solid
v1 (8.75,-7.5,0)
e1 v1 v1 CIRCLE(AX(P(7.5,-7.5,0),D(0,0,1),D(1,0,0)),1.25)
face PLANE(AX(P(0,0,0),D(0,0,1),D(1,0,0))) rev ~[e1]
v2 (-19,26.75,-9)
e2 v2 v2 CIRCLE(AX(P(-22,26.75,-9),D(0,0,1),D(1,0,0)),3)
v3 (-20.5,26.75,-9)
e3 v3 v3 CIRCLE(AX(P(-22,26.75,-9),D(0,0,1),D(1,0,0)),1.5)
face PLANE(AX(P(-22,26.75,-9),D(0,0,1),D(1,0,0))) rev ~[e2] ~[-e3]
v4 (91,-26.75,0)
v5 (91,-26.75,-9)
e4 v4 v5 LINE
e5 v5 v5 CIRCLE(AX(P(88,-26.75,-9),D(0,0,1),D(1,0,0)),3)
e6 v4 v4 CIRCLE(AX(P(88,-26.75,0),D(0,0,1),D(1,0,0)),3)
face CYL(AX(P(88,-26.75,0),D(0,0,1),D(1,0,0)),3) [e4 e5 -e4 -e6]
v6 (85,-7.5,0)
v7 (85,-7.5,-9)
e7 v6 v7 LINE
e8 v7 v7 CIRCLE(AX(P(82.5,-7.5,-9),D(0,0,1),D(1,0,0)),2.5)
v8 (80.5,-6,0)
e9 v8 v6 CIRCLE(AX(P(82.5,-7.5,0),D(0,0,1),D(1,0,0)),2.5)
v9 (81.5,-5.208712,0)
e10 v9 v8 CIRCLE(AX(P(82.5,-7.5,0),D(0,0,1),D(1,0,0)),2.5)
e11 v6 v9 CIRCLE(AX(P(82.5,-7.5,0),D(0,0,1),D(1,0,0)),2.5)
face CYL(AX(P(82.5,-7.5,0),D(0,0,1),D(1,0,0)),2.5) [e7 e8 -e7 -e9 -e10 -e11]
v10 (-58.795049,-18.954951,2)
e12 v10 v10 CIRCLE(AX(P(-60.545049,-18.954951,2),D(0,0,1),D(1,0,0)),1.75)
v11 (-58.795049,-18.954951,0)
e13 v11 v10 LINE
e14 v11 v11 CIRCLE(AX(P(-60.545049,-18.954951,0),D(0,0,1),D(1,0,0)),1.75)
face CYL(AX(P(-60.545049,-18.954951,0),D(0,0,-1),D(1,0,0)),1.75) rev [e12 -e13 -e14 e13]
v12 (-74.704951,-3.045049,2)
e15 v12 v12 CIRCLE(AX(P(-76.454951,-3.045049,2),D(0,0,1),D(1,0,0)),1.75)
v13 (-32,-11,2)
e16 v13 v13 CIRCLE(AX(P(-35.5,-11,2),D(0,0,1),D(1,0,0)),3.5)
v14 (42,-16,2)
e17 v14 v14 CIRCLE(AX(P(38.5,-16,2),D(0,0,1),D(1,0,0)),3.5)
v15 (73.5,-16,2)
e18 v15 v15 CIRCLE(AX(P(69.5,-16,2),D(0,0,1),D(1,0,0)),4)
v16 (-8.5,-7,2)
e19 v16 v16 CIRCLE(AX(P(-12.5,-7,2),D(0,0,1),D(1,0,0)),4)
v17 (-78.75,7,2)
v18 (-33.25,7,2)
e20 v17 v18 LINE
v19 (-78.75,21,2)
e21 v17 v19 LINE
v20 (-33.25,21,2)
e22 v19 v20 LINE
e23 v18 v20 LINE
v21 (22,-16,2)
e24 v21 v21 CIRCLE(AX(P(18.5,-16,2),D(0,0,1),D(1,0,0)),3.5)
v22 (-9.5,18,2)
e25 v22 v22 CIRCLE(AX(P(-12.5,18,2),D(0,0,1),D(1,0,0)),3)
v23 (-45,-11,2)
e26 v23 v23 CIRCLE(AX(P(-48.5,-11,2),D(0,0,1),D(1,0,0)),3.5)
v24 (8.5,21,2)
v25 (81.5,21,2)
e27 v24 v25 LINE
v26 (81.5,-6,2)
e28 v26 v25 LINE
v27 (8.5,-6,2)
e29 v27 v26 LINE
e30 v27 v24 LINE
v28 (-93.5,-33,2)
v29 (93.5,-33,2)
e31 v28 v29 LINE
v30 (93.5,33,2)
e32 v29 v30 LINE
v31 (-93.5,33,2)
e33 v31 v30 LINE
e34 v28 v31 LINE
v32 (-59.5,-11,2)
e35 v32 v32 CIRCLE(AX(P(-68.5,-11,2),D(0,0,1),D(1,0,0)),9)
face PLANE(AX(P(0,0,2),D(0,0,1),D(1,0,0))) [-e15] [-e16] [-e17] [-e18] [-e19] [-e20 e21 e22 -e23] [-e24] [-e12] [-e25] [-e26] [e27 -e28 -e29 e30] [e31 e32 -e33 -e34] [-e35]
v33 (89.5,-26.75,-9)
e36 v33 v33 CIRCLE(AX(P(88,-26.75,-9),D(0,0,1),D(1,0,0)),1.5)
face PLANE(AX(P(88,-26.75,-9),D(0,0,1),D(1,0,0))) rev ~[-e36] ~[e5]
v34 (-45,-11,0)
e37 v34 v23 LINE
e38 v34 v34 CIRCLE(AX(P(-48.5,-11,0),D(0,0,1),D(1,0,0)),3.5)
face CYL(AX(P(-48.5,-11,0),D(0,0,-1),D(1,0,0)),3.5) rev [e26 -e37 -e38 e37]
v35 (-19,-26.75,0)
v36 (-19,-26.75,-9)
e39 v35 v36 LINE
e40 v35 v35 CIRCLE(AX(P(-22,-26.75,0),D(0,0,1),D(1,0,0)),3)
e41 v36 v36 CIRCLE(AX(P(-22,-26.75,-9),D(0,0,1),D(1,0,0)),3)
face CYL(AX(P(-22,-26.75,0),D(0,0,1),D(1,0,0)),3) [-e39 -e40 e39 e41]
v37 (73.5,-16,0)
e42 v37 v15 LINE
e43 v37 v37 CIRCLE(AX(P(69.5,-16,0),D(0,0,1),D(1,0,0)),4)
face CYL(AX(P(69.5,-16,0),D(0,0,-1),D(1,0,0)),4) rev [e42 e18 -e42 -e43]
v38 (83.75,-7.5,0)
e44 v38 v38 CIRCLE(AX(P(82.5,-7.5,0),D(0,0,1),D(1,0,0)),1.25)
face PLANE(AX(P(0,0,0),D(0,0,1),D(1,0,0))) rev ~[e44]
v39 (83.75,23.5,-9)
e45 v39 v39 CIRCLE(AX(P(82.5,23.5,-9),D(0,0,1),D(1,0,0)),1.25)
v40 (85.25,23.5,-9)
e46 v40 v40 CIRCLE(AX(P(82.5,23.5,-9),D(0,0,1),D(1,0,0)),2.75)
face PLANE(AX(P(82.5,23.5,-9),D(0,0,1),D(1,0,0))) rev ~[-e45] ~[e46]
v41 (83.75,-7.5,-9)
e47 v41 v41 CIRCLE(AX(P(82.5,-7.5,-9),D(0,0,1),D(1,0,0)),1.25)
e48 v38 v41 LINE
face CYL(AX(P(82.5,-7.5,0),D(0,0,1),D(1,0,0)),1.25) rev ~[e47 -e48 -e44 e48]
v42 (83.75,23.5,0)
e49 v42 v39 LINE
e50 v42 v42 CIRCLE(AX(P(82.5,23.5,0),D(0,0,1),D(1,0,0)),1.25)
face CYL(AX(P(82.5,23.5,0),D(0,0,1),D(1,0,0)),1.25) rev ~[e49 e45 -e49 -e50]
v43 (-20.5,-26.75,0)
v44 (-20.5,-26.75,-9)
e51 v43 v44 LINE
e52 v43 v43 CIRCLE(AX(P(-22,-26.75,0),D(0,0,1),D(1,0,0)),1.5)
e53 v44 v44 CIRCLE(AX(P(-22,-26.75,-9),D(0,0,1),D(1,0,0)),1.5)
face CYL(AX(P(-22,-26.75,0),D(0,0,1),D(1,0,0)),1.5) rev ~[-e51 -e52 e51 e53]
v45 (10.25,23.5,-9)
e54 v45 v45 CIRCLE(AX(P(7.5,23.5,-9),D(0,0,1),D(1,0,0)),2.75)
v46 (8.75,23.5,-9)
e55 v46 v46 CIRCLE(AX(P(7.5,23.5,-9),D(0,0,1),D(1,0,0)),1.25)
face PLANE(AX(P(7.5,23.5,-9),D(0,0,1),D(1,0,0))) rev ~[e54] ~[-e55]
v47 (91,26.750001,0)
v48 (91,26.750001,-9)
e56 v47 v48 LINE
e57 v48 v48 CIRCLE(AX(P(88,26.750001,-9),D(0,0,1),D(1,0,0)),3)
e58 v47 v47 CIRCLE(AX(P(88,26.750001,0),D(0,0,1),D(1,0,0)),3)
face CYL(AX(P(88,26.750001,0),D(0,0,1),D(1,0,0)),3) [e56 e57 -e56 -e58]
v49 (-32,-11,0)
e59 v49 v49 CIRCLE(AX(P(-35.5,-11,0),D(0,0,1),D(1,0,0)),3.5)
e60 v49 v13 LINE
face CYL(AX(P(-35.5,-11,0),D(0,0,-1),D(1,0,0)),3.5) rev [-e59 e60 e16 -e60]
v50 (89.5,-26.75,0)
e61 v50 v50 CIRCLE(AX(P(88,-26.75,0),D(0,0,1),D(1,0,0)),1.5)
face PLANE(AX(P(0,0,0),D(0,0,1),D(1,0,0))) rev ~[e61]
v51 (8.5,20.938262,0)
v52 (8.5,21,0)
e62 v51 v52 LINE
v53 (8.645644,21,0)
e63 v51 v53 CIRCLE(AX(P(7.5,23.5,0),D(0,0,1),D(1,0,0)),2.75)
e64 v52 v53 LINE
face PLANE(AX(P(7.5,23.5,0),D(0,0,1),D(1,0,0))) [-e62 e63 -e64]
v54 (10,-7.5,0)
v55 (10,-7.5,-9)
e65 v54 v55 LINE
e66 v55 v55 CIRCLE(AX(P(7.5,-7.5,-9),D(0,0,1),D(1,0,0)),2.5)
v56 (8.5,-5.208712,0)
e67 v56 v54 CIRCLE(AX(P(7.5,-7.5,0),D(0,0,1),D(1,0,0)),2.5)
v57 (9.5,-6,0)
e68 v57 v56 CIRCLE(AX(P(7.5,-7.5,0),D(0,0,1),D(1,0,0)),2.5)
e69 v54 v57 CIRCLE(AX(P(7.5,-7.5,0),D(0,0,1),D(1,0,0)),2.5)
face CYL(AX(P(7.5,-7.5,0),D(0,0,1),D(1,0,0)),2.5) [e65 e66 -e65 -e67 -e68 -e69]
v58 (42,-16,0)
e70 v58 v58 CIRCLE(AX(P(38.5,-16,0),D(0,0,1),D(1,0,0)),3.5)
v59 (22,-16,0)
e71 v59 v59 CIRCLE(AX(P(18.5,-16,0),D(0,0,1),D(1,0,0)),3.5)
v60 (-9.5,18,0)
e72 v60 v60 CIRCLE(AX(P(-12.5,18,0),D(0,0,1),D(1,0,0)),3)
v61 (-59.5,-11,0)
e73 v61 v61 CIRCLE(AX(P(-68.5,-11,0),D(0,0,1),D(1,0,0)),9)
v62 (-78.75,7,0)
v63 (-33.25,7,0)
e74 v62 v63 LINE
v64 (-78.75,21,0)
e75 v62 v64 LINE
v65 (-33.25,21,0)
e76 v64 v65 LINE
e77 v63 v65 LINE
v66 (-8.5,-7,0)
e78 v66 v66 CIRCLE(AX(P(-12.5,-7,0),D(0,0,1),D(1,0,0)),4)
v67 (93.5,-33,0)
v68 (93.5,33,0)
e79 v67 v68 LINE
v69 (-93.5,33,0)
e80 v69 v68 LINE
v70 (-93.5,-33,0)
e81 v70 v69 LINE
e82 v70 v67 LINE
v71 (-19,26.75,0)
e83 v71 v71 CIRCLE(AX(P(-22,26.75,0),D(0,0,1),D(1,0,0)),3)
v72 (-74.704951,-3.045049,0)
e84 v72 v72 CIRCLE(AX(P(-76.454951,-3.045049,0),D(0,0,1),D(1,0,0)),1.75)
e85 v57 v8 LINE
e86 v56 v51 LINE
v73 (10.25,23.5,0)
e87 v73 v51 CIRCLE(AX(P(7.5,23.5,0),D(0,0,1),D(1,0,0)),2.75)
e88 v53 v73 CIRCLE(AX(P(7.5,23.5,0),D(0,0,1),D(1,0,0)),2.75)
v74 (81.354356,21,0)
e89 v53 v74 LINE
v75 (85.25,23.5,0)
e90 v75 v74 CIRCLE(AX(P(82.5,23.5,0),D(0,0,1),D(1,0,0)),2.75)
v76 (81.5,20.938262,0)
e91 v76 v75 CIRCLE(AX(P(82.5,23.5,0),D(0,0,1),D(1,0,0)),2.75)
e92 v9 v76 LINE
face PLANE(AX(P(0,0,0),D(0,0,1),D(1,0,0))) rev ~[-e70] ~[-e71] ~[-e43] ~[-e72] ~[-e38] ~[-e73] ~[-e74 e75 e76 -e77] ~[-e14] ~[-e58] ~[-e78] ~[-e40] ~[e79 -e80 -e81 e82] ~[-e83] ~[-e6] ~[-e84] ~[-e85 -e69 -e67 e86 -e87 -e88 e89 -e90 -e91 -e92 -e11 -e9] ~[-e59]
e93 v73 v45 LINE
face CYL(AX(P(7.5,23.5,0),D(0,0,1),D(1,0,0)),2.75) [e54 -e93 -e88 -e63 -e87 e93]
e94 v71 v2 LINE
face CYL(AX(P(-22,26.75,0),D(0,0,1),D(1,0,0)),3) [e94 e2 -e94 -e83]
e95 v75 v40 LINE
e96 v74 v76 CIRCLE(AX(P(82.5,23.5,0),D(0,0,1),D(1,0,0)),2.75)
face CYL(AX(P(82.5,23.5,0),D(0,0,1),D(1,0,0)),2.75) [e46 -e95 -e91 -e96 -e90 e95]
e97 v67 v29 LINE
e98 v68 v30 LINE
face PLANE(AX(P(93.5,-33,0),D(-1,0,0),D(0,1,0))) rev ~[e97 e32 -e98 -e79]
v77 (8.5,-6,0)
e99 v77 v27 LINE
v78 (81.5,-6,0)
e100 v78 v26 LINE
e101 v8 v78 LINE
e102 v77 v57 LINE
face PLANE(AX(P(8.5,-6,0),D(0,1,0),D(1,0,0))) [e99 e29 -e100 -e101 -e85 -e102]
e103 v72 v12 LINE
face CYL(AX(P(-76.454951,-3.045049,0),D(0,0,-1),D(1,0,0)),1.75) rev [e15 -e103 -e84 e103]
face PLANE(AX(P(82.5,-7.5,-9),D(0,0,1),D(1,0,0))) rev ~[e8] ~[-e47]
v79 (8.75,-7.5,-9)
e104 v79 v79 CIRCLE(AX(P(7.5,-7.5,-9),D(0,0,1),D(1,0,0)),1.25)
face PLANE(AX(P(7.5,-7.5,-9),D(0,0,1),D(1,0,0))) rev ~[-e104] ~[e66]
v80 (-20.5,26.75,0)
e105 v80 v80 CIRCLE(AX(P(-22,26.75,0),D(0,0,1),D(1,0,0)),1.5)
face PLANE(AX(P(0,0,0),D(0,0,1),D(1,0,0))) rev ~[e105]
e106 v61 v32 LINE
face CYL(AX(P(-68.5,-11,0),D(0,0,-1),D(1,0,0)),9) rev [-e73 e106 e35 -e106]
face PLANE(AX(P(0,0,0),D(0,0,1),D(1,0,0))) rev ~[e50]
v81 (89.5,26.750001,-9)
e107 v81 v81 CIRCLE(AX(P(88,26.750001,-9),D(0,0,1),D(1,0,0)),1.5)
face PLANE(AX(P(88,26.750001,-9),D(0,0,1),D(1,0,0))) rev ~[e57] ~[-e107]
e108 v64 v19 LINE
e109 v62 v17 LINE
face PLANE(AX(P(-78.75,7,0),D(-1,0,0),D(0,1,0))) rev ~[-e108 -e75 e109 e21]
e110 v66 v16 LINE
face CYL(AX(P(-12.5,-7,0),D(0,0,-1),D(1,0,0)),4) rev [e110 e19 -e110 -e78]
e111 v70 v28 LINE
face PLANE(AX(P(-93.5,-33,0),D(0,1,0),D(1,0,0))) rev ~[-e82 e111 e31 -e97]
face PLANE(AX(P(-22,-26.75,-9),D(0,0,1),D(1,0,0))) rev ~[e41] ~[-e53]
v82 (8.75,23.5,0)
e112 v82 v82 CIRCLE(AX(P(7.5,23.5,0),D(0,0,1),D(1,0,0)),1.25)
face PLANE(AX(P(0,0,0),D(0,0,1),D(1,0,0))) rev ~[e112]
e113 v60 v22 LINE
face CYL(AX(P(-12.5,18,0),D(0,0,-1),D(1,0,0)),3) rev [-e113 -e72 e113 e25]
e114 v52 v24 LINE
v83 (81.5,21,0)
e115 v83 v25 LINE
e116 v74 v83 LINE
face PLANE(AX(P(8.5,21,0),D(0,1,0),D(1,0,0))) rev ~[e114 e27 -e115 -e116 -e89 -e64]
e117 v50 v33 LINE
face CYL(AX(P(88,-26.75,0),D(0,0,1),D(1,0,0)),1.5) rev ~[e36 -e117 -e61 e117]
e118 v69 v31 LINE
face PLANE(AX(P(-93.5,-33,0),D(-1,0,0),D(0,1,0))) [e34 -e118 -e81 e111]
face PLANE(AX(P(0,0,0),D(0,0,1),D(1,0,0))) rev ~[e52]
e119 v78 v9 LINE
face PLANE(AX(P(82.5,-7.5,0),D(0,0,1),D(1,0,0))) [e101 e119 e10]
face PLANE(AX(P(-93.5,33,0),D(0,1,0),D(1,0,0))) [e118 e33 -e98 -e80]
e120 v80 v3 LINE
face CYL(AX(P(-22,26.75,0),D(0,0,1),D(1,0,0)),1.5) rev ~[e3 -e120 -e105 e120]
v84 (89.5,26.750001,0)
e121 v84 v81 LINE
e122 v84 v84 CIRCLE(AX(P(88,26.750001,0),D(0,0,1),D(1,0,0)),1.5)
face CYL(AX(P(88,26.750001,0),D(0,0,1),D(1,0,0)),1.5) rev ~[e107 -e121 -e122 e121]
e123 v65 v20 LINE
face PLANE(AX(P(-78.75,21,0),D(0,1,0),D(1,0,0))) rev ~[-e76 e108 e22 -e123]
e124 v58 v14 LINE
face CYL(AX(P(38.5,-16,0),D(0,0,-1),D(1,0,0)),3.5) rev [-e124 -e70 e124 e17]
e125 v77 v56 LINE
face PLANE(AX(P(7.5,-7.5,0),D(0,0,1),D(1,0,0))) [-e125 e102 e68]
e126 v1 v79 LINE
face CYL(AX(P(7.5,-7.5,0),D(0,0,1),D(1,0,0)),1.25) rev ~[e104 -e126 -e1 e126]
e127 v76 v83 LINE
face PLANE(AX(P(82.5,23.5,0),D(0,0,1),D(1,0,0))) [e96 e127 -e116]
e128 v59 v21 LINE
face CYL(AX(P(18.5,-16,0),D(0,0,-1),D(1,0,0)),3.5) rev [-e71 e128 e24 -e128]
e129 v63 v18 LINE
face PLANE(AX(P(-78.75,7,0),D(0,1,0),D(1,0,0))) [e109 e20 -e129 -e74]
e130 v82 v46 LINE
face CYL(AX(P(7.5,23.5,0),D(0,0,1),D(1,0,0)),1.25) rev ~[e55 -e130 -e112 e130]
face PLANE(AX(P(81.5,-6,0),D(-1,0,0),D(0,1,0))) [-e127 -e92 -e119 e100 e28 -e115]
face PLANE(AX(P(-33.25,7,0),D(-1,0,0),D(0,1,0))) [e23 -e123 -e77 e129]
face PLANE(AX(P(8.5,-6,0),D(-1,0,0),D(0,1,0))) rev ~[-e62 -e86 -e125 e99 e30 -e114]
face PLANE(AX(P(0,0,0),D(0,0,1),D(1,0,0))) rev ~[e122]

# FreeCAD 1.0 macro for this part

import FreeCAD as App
import Part
import Sketcher
from FreeCAD import Vector
Q = App.Units.Quantity


def add_polygon(sketch, points):
    """Adds a closed chain of lines whose ends are joined by coincident constraints."""
    first, n = sketch.GeometryCount, len(points)
    for a, b in zip(points, points[1:] + points[:1]):
        sketch.addGeometry(Part.LineSegment(App.Vector(*a, 0), App.Vector(*b, 0)), False)
    for i in range(n):
        sketch.addConstraint(Sketcher.Constraint("Coincident", first + i, 2, first + (i + 1) % n, 1))

doc = App.newDocument("Part")
params = doc.addObject("Spreadsheet::Sheet", "Params")
for row, (alias, value) in enumerate([
    ("sketch1_diameter", "18 mm"),
    ("sketch1_diameter2", "7 mm"),
    ("sketch1_diameter3", "8 mm"),
    ("sketch1_diameter4", "6 mm"),
    ("sketch1_diameter5", "3.5 mm"),
    ("pad1_length", "2 mm"),
    ("sketch2_diameter", "5 mm"),
    ("sketch2_diameter2", "6 mm"),
    ("sketch2_diameter3", "3 mm"),
    ("sketch2_diameter4", "5.5 mm"),
    ("sketch2_diameter5", "2.5 mm"),
    ("pad2_length", "9 mm"),
], start=1):
    params.set(f"A{row}", alias)
    params.set(f"B{row}", "=" + value)
    params.setAlias(f"B{row}", alias)

body = doc.addObject("PartDesign::Body", "Body")

# Sketch on XY plane
sketch1 = body.newObject("Sketcher::SketchObject", "Sketch")
sketch1.AttachmentSupport = (doc.getObject("XY_Plane"), [""])
sketch1.MapMode = "FlatFace"
add_polygon(sketch1, [(-93.5, 33), (-93.5, -33), (93.5, -33), (93.5, 33)])  # lines 0-3
sketch1.addGeometry(Part.Circle(Vector(-60.5, -19, 0), Vector(0, 0, 1), 1.8), False)  # 4
sketch1.addGeometry(Part.Circle(Vector(-68.5, -11, 0), Vector(0, 0, 1), 9), False)  # 5
sketch1.addGeometry(Part.Circle(Vector(-48.5, -11, 0), Vector(0, 0, 1), 3.5), False)  # 6
sketch1.addGeometry(Part.Circle(Vector(-35.5, -11, 0), Vector(0, 0, 1), 3.5), False)  # 7
sketch1.addGeometry(Part.Circle(Vector(-76.5, -3, 0), Vector(0, 0, 1), 1.8), False)  # 8
sketch1.addGeometry(Part.Circle(Vector(-12.5, -7, 0), Vector(0, 0, 1), 4), False)  # 9
sketch1.addGeometry(Part.Circle(Vector(18.5, -16, 0), Vector(0, 0, 1), 3.5), False)  # 10
sketch1.addGeometry(Part.Circle(Vector(38.5, -16, 0), Vector(0, 0, 1), 3.5), False)  # 11
sketch1.addGeometry(Part.Circle(Vector(69.5, -16, 0), Vector(0, 0, 1), 4), False)  # 12
add_polygon(sketch1, [(-33.2, 7), (-78.8, 7), (-78.8, 21), (-33.2, 21)])  # lines 13-16
sketch1.addGeometry(Part.Circle(Vector(-12.5, 18, 0), Vector(0, 0, 1), 3), False)  # 17
add_polygon(sketch1, [(81.5, -6), (8.5, -6), (8.5, 21), (81.5, 21)])  # lines 18-21
sketch1.addConstraint([
    Sketcher.Constraint("Vertical", 0),
    Sketcher.Constraint("Horizontal", 1),
    Sketcher.Constraint("Vertical", 2),
    Sketcher.Constraint("Horizontal", 3),
    Sketcher.Constraint("Horizontal", 13),
    Sketcher.Constraint("Vertical", 14),
    Sketcher.Constraint("Horizontal", 15),
    Sketcher.Constraint("Vertical", 16),
    Sketcher.Constraint("Horizontal", 18),
    Sketcher.Constraint("Vertical", 19),
    Sketcher.Constraint("Horizontal", 20),
    Sketcher.Constraint("Vertical", 21),
    Sketcher.Constraint("Equal", 6, 7),
    Sketcher.Constraint("Equal", 4, 8),
    Sketcher.Constraint("Equal", 7, 10),
    Sketcher.Constraint("Equal", 10, 11),
    Sketcher.Constraint("Equal", 9, 12),
    Sketcher.Constraint("Symmetric", 0, 2, 2, 2, -1, 1),
    Sketcher.Constraint("Horizontal", 5, 3, 6, 3),
    Sketcher.Constraint("Horizontal", 6, 3, 7, 3),
    Sketcher.Constraint("Horizontal", 10, 3, 11, 3),
    Sketcher.Constraint("Horizontal", 11, 3, 12, 3),
    Sketcher.Constraint("Horizontal", 15, 2, 19, 2),
    Sketcher.Constraint("Vertical", 9, 3, 17, 3),
    Sketcher.Constraint("Diameter", 5, Q("18 mm")),
    Sketcher.Constraint("Diameter", 6, Q("7 mm")),
    Sketcher.Constraint("Diameter", 9, Q("8 mm")),
    Sketcher.Constraint("Diameter", 17, Q("6 mm")),
    Sketcher.Constraint("Diameter", 4, Q("3.5 mm")),
    Sketcher.Constraint("DistanceX", 1, 1, 1, 2, Q("187 mm")),
    Sketcher.Constraint("DistanceX", 18, 2, 18, 1, Q("73 mm")),
    Sketcher.Constraint("DistanceY", 0, 2, 0, 1, Q("66 mm")),
    Sketcher.Constraint("DistanceY", 14, 1, 14, 2, Q("14 mm")),
    Sketcher.Constraint("DistanceY", 19, 1, 19, 2, Q("27 mm")),
    Sketcher.Constraint("DistanceX", 13, 2, 13, 1, Q("45.5 mm")),
    Sketcher.Constraint("DistanceY", 5, 3, -1, 1, Q("11 mm")),
    Sketcher.Constraint("DistanceY", 9, 3, -1, 1, Q("7 mm")),
    Sketcher.Constraint("DistanceY", 10, 3, -1, 1, Q("16 mm")),
    Sketcher.Constraint("DistanceY", -1, 1, 17, 3, Q("18 mm")),
    Sketcher.Constraint("DistanceY", -1, 1, 13, 2, Q("7 mm")),
    Sketcher.Constraint("DistanceX", 5, 3, 6, 3, Q("20 mm")),
    Sketcher.Constraint("DistanceX", 6, 3, 7, 3, Q("13 mm")),
    Sketcher.Constraint("DistanceX", 7, 3, 9, 3, Q("23 mm")),
    Sketcher.Constraint("DistanceX", 9, 3, 10, 3, Q("31 mm")),
    Sketcher.Constraint("DistanceX", 10, 3, 11, 3, Q("20 mm")),
    Sketcher.Constraint("DistanceX", 11, 3, 12, 3, Q("31 mm")),
    Sketcher.Constraint("DistanceX", 0, 2, 5, 3, Q("25 mm")),
    Sketcher.Constraint("DistanceX", 18, 2, 10, 3, Q("10 mm")),
    Sketcher.Constraint("DistanceX", 13, 2, -1, 1, Q("78.75 mm")),
    Sketcher.Constraint("DistanceX", 8, 3, 4, 3, Q("15.909902 mm")),
    Sketcher.Constraint("DistanceX", 4, 3, -1, 1, Q("60.545049 mm")),
    Sketcher.Constraint("DistanceY", 4, 3, -1, 1, Q("18.954951 mm")),
    Sketcher.Constraint("DistanceY", 8, 3, -1, 1, Q("3.045049 mm")),
])
sketch1.setExpression("Constraints[36]", "Params.sketch1_diameter")
sketch1.setExpression("Constraints[37]", "Params.sketch1_diameter2")
sketch1.setExpression("Constraints[38]", "Params.sketch1_diameter3")
sketch1.setExpression("Constraints[39]", "Params.sketch1_diameter4")
sketch1.setExpression("Constraints[40]", "Params.sketch1_diameter5")
pad1 = body.newObject("PartDesign::Pad", "Pad")
pad1.Profile = sketch1
pad1.setExpression("Length", "Params.pad1_length")

# Sketch on XY plane
sketch2 = body.newObject("Sketcher::SketchObject", "Sketch001")
sketch2.AttachmentSupport = (doc.getObject("XY_Plane"), [""])
sketch2.MapMode = "FlatFace"
sketch2.addGeometry([
    Part.Circle(Vector(82.5, 23.5, 0), Vector(0, 0, 1), 2.8),  # 0
    Part.Circle(Vector(82.5, 23.5, 0), Vector(0, 0, 1), 1.2),  # 1
    Part.Circle(Vector(7.5, 23.5, 0), Vector(0, 0, 1), 2.8),  # 2
    Part.Circle(Vector(7.5, 23.5, 0), Vector(0, 0, 1), 1.2),  # 3
    Part.Circle(Vector(82.5, -7.5, 0), Vector(0, 0, 1), 2.5),  # 4
    Part.Circle(Vector(82.5, -7.5, 0), Vector(0, 0, 1), 1.2),  # 5
    Part.Circle(Vector(7.5, -7.5, 0), Vector(0, 0, 1), 2.5),  # 6
    Part.Circle(Vector(7.5, -7.5, 0), Vector(0, 0, 1), 1.2),  # 7
    Part.Circle(Vector(-22, 26.8, 0), Vector(0, 0, 1), 3),  # 8
    Part.Circle(Vector(-22, 26.8, 0), Vector(0, 0, 1), 1.5),  # 9
    Part.Circle(Vector(-22, -26.8, 0), Vector(0, 0, 1), 3),  # 10
    Part.Circle(Vector(-22, -26.8, 0), Vector(0, 0, 1), 1.5),  # 11
    Part.Circle(Vector(88, -26.8, 0), Vector(0, 0, 1), 3),  # 12
    Part.Circle(Vector(88, -26.8, 0), Vector(0, 0, 1), 1.5),  # 13
    Part.Circle(Vector(88, 26.8, 0), Vector(0, 0, 1), 3),  # 14
    Part.Circle(Vector(88, 26.8, 0), Vector(0, 0, 1), 1.5),  # 15
], False)
sketch2.addConstraint([
    Sketcher.Constraint("Coincident", 1, 3, 0, 3),
    Sketcher.Constraint("Coincident", 3, 3, 2, 3),
    Sketcher.Constraint("Coincident", 5, 3, 4, 3),
    Sketcher.Constraint("Coincident", 7, 3, 6, 3),
    Sketcher.Constraint("Coincident", 9, 3, 8, 3),
    Sketcher.Constraint("Coincident", 11, 3, 10, 3),
    Sketcher.Constraint("Coincident", 13, 3, 12, 3),
    Sketcher.Constraint("Coincident", 15, 3, 14, 3),
    Sketcher.Constraint("Equal", 0, 2),
    Sketcher.Constraint("Equal", 1, 3),
    Sketcher.Constraint("Equal", 3, 5),
    Sketcher.Constraint("Equal", 4, 6),
    Sketcher.Constraint("Equal", 5, 7),
    Sketcher.Constraint("Equal", 8, 10),
    Sketcher.Constraint("Equal", 9, 11),
    Sketcher.Constraint("Equal", 10, 12),
    Sketcher.Constraint("Equal", 11, 13),
    Sketcher.Constraint("Equal", 12, 14),
    Sketcher.Constraint("Equal", 13, 15),
    Sketcher.Constraint("Symmetric", 8, 3, 10, 3, -1),
    Sketcher.Constraint("Symmetric", 12, 3, 14, 3, -1),
    Sketcher.Constraint("Horizontal", 1, 3, 2, 3),
    Sketcher.Constraint("Horizontal", 5, 3, 6, 3),
    Sketcher.Constraint("Horizontal", 11, 3, 12, 3),
    Sketcher.Constraint("Vertical", 1, 3, 4, 3),
    Sketcher.Constraint("Vertical", 3, 3, 6, 3),
    Sketcher.Constraint("Diameter", 4, Q("5 mm")),
    Sketcher.Constraint("Diameter", 8, Q("6 mm")),
    Sketcher.Constraint("Diameter", 9, Q("3 mm")),
    Sketcher.Constraint("Diameter", 0, Q("5.5 mm")),
    Sketcher.Constraint("Diameter", 1, Q("2.5 mm")),
    Sketcher.Constraint("DistanceX", 8, 3, -1, 1, Q("22 mm")),
    Sketcher.Constraint("DistanceX", -1, 1, 12, 3, Q("88 mm")),
    Sketcher.Constraint("DistanceX", 2, 3, 0, 3, Q("75 mm")),
    Sketcher.Constraint("DistanceY", 4, 3, 0, 3, Q("31 mm")),
    Sketcher.Constraint("DistanceX", -1, 1, 0, 3, Q("82.5 mm")),
    Sketcher.Constraint("DistanceY", -1, 1, 0, 3, Q("23.5 mm")),
    Sketcher.Constraint("DistanceY", 10, 3, 8, 3, Q("53.5 mm")),
])
sketch2.setExpression("Constraints[26]", "Params.sketch2_diameter")
sketch2.setExpression("Constraints[27]", "Params.sketch2_diameter2")
sketch2.setExpression("Constraints[28]", "Params.sketch2_diameter3")
sketch2.setExpression("Constraints[29]", "Params.sketch2_diameter4")
sketch2.setExpression("Constraints[30]", "Params.sketch2_diameter5")
pad2 = body.newObject("PartDesign::Pad", "Pad001")
pad2.Profile = sketch2
pad2.setExpression("Length", "Params.pad2_length")
pad2.Reversed = True

doc.recompute()
